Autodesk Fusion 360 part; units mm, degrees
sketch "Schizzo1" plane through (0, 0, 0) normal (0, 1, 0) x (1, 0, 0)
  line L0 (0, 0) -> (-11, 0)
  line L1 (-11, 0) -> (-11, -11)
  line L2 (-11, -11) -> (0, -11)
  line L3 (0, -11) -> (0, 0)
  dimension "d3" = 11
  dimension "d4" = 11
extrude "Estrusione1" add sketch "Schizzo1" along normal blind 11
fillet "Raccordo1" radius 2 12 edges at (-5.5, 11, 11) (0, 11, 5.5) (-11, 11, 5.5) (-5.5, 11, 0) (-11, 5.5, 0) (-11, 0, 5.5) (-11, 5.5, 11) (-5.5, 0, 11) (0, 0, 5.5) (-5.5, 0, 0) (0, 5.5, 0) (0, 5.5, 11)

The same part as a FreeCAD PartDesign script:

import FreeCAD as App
import Part
import Sketcher
from FreeCAD import Vector
Q = App.Units.Quantity


def add_polygon(sketch, points):
    """Adds a closed chain of lines whose ends are joined by coincident constraints."""
    first, n = sketch.GeometryCount, len(points)
    for a, b in zip(points, points[1:] + points[:1]):
        sketch.addGeometry(Part.LineSegment(App.Vector(*a, 0), App.Vector(*b, 0)), False)
    for i in range(n):
        sketch.addConstraint(Sketcher.Constraint("Coincident", first + i, 2, first + (i + 1) % n, 1))

doc = App.newDocument("Part")
body = doc.addObject("PartDesign::Body", "Body")

sketch1 = doc.addObject("Sketcher::SketchObject", "Sketch")
body.addObject(sketch1)
sketch1.AttachmentSupport = (doc.XZ_Plane, [""])
sketch1.MapMode = "FlatFace"
add_polygon(sketch1, [(0, 11), (0, 0), (-11, 0), (-11, 11)])
sketch1.addConstraint(Sketcher.Constraint("Vertical", 0))
sketch1.addConstraint(Sketcher.Constraint("Horizontal", 1))
sketch1.addConstraint(Sketcher.Constraint("Vertical", 2))
sketch1.addConstraint(Sketcher.Constraint("Horizontal", 3))
sketch1.addConstraint(Sketcher.Constraint("Coincident", 0, 2, -1, 1))
sketch1.addConstraint(Sketcher.Constraint("Equal", 3, 0))
sketch1.addConstraint(Sketcher.Constraint("DistanceX", 1, 2, 1, 1, Q("11 mm")))
pad1 = doc.addObject("PartDesign::Pad", "Pad")
body.addObject(pad1)
pad1.Profile = sketch1
pad1.Length = 11
pad1.Reversed = True
doc.recompute()

fillet = doc.addObject("PartDesign::Fillet", "Fillet")
body.addObject(fillet)
fillet.Base = (pad1, ["Edge1"])
fillet.UseAllEdges = True
fillet.Radius = 2

doc.recompute()
